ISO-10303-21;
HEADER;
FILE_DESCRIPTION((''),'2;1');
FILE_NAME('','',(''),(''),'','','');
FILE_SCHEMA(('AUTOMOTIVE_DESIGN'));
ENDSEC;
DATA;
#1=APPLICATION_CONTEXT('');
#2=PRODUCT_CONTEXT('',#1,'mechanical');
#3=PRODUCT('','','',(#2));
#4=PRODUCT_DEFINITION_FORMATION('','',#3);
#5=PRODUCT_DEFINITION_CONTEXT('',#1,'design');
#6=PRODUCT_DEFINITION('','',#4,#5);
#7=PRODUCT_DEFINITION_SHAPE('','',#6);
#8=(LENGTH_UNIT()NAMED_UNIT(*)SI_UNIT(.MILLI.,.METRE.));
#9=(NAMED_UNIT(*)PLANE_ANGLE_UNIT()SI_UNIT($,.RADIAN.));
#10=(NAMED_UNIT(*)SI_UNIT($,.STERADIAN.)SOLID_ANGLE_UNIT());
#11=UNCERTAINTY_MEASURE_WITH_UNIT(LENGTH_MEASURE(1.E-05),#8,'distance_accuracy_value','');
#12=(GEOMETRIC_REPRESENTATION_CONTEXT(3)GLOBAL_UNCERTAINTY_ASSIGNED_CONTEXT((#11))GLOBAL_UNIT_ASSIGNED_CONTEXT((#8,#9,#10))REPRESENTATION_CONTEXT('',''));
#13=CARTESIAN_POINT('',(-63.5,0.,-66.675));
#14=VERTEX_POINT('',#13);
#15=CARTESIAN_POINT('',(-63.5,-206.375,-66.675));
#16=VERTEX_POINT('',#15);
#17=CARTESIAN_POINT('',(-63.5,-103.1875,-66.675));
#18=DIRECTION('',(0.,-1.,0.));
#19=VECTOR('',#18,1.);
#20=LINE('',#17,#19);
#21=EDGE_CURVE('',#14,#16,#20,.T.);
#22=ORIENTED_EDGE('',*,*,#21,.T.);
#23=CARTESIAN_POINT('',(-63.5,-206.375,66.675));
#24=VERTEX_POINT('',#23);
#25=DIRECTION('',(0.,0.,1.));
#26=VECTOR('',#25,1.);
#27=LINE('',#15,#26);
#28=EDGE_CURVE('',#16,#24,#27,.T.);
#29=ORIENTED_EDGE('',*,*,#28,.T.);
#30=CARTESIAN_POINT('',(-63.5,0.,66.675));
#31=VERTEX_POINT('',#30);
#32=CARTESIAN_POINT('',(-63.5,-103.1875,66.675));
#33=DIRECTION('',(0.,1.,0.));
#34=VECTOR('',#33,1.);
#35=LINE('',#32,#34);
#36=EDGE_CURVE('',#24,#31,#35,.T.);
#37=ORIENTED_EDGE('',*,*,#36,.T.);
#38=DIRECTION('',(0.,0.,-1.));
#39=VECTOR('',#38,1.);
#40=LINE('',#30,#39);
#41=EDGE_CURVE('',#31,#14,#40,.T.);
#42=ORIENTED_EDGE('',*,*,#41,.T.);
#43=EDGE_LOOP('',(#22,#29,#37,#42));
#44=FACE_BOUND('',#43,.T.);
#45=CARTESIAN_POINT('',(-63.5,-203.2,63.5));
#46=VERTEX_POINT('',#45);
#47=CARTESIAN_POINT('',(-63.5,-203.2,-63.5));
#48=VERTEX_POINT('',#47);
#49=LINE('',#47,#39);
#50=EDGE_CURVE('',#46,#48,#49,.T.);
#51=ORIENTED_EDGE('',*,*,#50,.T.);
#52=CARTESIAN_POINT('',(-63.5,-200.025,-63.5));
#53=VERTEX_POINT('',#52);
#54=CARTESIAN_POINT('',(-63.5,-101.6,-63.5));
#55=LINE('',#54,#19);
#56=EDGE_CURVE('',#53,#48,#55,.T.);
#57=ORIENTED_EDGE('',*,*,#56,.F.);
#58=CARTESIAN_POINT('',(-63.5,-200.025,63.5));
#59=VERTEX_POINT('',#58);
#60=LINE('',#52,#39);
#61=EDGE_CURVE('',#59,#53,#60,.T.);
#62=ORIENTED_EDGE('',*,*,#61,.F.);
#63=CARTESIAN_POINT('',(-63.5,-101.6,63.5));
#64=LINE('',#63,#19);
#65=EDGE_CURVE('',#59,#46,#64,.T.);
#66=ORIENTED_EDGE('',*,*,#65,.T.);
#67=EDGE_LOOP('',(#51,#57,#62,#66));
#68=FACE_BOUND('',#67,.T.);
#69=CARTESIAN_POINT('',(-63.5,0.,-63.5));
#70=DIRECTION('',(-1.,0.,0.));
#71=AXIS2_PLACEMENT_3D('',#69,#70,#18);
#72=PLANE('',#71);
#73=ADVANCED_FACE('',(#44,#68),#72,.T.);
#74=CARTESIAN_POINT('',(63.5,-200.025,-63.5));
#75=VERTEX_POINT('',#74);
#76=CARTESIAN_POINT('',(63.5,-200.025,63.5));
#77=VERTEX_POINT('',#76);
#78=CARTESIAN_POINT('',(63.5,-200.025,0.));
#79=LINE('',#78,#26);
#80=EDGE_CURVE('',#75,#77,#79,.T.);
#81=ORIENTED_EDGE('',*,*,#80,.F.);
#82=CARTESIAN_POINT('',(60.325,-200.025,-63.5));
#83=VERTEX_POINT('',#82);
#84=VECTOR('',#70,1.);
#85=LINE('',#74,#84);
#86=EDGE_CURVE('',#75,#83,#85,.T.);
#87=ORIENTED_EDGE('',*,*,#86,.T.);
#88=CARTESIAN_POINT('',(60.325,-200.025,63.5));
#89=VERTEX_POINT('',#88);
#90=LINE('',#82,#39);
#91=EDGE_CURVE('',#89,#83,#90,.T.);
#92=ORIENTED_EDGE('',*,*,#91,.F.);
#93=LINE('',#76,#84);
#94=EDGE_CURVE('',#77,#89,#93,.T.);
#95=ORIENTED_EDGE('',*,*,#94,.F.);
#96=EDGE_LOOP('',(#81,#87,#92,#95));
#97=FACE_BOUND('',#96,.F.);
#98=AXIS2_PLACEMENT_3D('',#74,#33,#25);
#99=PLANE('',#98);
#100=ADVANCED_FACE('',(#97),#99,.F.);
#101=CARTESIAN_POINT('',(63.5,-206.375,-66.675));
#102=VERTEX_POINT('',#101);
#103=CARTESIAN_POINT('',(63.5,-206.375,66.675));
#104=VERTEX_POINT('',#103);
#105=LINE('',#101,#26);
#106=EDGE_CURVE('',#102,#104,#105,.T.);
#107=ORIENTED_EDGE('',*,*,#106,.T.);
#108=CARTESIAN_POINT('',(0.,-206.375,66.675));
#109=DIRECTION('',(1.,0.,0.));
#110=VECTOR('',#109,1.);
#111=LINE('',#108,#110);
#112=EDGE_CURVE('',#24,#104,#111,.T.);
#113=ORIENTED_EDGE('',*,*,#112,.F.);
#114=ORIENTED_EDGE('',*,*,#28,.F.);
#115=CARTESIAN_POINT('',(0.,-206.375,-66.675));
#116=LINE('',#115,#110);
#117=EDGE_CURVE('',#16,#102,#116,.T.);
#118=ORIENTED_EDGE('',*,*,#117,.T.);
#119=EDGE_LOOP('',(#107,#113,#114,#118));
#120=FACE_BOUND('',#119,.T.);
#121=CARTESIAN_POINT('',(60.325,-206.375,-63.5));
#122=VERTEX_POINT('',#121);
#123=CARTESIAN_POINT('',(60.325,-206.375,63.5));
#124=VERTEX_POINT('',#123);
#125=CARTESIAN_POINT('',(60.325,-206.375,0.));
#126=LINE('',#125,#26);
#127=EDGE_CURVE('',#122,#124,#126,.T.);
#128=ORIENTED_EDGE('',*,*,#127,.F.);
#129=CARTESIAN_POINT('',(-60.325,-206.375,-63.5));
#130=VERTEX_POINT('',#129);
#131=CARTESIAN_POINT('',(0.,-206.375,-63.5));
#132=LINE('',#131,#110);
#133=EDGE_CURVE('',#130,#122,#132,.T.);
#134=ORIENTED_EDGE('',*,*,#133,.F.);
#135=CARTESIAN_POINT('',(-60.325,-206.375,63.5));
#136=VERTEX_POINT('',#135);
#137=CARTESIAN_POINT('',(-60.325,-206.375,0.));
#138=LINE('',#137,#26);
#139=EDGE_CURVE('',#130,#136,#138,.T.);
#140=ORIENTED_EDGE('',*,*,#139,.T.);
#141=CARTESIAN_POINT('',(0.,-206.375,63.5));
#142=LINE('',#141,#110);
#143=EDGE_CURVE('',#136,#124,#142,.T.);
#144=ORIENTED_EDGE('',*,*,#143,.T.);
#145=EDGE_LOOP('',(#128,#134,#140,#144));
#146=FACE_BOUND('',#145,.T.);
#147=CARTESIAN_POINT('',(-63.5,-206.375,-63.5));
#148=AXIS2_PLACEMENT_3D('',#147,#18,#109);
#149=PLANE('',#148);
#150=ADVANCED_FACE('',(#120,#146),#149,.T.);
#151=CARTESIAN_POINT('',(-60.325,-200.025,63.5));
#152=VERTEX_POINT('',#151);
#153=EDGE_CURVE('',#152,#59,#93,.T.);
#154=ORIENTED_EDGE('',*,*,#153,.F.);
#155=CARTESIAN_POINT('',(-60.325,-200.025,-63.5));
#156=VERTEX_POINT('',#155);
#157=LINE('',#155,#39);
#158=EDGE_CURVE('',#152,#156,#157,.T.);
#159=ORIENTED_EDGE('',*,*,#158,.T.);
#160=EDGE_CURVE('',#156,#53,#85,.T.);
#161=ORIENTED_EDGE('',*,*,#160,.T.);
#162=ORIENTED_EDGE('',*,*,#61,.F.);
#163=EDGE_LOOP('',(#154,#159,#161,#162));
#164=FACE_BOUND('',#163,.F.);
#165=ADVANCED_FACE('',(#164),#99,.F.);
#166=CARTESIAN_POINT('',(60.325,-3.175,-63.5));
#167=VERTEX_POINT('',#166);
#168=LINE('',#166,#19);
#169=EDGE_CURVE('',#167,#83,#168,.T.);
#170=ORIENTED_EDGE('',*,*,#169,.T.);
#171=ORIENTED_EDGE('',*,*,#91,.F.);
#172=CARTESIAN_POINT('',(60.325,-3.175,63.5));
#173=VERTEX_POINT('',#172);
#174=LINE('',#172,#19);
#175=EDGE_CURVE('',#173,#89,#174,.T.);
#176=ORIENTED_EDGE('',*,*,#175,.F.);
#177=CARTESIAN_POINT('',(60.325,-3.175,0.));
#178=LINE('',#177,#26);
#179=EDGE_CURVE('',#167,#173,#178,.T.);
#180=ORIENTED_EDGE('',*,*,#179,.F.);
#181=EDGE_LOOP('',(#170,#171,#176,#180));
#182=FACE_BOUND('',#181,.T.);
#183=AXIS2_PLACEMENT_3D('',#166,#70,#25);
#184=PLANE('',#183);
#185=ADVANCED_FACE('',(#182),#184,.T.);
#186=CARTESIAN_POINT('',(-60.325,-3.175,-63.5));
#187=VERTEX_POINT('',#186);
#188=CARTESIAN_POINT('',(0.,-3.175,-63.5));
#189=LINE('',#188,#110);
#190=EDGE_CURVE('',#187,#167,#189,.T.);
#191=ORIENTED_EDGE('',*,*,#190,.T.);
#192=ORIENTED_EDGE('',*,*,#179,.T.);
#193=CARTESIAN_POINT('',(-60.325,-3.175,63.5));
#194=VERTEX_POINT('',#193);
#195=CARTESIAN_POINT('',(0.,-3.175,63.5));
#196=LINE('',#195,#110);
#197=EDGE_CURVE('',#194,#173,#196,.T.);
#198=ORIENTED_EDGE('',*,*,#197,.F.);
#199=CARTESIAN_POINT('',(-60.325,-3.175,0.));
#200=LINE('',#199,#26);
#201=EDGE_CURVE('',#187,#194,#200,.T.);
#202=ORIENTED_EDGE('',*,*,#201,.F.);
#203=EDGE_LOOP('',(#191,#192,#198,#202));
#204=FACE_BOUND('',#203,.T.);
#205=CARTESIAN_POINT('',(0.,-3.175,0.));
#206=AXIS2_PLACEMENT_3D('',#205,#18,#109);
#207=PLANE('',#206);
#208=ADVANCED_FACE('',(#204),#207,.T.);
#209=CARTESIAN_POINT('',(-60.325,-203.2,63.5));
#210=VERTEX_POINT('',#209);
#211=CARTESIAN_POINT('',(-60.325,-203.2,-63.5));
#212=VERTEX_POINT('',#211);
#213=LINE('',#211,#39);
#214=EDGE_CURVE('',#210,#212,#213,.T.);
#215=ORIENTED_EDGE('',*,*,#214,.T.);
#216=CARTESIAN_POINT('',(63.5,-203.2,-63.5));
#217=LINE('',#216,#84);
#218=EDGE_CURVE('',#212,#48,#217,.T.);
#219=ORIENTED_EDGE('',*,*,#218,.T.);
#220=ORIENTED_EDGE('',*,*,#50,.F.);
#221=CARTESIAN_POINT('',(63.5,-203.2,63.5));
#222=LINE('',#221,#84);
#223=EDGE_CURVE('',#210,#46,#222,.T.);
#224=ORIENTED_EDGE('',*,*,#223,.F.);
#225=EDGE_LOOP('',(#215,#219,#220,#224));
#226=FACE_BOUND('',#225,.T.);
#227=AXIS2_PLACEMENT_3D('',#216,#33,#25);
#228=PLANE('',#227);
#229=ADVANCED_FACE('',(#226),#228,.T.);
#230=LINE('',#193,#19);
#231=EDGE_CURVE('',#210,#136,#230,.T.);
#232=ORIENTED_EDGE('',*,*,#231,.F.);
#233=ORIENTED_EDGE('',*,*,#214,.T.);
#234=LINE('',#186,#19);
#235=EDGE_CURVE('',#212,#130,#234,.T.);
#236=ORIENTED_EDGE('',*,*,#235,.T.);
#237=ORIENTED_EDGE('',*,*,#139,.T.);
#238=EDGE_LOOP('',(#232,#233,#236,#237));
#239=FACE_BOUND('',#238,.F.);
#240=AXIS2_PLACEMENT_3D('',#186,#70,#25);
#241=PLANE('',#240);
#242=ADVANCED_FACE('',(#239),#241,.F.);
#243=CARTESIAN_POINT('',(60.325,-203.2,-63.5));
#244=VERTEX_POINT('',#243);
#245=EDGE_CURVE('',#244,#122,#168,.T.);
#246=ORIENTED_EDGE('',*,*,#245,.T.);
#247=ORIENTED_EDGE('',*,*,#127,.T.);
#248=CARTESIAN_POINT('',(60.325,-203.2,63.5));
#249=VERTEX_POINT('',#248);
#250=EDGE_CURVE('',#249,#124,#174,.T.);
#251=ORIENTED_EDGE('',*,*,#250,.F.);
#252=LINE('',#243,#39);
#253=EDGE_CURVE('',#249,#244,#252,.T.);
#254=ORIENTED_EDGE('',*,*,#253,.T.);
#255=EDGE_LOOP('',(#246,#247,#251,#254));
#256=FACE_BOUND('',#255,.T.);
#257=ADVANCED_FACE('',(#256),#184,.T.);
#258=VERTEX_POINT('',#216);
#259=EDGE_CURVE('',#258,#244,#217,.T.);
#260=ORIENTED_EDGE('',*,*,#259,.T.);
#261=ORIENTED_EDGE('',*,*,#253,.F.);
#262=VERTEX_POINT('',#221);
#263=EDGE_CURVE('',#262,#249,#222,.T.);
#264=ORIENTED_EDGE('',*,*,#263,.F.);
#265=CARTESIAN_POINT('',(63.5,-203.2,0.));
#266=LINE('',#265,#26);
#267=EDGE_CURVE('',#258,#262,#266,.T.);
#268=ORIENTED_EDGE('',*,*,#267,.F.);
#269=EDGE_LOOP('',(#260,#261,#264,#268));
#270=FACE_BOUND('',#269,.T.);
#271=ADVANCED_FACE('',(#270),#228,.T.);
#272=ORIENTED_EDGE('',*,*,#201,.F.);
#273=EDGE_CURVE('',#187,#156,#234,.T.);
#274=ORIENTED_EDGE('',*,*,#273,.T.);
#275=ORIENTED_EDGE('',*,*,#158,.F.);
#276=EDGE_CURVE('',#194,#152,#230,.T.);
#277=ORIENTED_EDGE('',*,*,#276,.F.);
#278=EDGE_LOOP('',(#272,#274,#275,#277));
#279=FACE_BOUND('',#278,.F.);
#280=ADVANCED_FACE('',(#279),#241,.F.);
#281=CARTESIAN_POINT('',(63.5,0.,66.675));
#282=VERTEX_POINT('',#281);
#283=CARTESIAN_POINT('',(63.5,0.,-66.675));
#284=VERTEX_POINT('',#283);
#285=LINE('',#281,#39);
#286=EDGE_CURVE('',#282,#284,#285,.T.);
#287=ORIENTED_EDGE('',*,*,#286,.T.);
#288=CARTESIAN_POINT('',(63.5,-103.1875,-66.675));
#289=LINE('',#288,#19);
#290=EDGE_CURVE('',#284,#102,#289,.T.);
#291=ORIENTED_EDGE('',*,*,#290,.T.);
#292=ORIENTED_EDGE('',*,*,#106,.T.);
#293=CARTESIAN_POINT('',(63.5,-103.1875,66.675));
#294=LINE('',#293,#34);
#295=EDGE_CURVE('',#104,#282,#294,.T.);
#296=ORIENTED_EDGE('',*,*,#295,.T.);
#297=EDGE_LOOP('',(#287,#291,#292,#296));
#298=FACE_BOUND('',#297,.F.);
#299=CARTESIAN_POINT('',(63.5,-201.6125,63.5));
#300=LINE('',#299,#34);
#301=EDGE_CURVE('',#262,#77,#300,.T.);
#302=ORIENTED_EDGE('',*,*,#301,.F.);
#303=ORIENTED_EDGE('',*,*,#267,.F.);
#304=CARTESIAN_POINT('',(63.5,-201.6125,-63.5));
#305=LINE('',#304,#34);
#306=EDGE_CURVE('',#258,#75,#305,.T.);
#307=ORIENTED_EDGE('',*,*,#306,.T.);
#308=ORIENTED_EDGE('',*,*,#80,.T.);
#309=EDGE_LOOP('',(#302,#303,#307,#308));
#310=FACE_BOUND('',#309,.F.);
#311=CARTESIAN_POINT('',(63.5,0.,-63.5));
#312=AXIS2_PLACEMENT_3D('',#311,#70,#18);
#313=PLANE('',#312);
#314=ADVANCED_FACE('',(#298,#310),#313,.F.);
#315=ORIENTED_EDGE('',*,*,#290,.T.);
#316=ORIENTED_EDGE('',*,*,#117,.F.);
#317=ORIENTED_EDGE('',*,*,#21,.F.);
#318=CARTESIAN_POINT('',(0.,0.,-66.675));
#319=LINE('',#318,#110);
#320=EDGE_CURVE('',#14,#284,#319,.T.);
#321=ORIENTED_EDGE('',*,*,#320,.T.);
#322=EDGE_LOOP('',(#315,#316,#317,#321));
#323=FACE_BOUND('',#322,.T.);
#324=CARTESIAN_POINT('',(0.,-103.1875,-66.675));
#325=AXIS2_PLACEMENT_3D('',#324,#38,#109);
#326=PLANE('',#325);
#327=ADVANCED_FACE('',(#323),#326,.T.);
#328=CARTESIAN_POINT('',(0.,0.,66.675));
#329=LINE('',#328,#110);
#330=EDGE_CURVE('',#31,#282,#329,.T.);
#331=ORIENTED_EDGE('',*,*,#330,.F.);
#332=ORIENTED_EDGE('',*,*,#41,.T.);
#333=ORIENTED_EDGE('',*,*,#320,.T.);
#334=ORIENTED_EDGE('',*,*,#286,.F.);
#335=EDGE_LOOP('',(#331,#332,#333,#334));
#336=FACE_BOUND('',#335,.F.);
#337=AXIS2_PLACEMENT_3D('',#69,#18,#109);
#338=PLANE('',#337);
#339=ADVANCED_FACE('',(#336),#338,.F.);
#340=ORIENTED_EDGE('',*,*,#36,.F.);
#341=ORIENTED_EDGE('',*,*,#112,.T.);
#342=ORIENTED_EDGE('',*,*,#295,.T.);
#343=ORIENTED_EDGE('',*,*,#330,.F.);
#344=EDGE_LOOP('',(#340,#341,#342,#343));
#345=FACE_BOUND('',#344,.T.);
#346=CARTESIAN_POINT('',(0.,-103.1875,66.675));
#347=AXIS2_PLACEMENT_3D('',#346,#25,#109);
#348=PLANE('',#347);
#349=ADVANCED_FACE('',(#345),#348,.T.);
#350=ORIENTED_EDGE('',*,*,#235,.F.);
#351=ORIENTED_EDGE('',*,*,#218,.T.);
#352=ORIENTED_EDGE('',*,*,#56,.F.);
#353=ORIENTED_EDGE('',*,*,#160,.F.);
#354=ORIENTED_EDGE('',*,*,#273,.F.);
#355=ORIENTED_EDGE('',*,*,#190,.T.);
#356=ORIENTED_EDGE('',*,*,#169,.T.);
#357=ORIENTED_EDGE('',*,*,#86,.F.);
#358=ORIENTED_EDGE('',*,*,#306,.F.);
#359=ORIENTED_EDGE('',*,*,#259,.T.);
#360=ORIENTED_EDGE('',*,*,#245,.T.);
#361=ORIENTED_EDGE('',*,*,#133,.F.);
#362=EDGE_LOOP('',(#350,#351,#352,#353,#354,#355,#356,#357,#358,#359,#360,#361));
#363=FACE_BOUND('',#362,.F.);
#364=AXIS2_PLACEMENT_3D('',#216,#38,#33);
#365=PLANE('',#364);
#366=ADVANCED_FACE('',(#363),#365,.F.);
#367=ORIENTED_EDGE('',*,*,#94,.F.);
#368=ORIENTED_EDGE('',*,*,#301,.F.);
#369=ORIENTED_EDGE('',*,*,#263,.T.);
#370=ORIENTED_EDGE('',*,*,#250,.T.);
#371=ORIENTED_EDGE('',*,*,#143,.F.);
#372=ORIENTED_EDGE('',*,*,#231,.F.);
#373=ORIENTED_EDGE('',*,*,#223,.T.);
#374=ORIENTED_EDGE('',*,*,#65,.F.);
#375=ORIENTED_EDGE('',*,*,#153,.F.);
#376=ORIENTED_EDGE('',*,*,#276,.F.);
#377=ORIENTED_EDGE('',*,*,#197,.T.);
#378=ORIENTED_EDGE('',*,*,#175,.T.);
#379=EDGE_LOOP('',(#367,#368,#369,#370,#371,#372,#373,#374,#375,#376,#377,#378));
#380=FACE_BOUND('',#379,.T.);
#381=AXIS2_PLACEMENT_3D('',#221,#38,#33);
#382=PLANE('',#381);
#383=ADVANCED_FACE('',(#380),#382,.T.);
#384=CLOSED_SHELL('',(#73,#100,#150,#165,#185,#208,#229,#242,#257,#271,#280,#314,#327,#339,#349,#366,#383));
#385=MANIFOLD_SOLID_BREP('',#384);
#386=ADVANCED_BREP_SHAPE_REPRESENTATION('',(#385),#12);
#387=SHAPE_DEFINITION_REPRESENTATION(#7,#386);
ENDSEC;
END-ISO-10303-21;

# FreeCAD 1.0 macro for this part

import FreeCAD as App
import Part
import Sketcher

V = App.Vector
Q = App.Units.Quantity

doc = App.newDocument("Part")
body = doc.addObject("PartDesign::Body", "Body")

sketch1 = body.newObject("Sketcher::SketchObject", "Sketch")
sketch1.AttachmentSupport = (doc.getObject("XZ_Plane"), [""])
sketch1.MapMode = "FlatFace"
sketch1.addGeometry([
    Part.LineSegment(V(-63.5, 63.5, 0), V(-63.5, -63.5, 0)),
    Part.LineSegment(V(-63.5, -63.5, 0), V(63.5, -63.5, 0)),
    Part.LineSegment(V(63.5, -63.5, 0), V(63.5, 63.5, 0)),
    Part.LineSegment(V(63.5, 63.5, 0), V(-63.5, 63.5, 0)),
], False)
sketch1.addConstraint([
    Sketcher.Constraint("Coincident", 0, 2, 1, 1),
    Sketcher.Constraint("Coincident", 1, 2, 2, 1),
    Sketcher.Constraint("Coincident", 2, 2, 3, 1),
    Sketcher.Constraint("Coincident", 3, 2, 0, 1),
    Sketcher.Constraint("Vertical", 0),
    Sketcher.Constraint("Horizontal", 1),
    Sketcher.Constraint("Vertical", 2),
    Sketcher.Constraint("Horizontal", 3),
    Sketcher.Constraint("Symmetric", 0, 2, 2, 2, -1, 1),
    Sketcher.Constraint("Equal", 3, 0),
    Sketcher.Constraint("DistanceX", 1, 1, 1, 2, Q("5 in")),
])
pad1 = body.newObject("PartDesign::Pad", "Pad")
pad1.Profile = sketch1
pad1.Length = Q("0.125 in")

sketch2 = body.newObject("Sketcher::SketchObject", "Sketch001")
sketch2.AttachmentSupport = (doc.getObject("XZ_Plane"), [""])
sketch2.MapMode = "FlatFace"
sketch2.AttachmentOffset = App.Placement(V(0, 0, 0.125 * 25.4), App.Rotation())
sketch2.addGeometry([
    Part.LineSegment(V(-63.5, 63.5, 0), V(-63.5, -63.5, 0)),
    Part.LineSegment(V(-63.5, -63.5, 0), V(-60.325, -63.5, 0)),
    Part.LineSegment(V(-60.325, -63.5, 0), V(-60.325, 63.5, 0)),
    Part.LineSegment(V(-60.325, 63.5, 0), V(-63.5, 63.5, 0)),
    Part.LineSegment(V(60.325, 63.5, 0), V(60.325, -63.5, 0)),
    Part.LineSegment(V(60.325, -63.5, 0), V(63.5, -63.5, 0)),
    Part.LineSegment(V(63.5, -63.5, 0), V(63.5, 63.5, 0)),
    Part.LineSegment(V(63.5, 63.5, 0), V(60.325, 63.5, 0)),
], False)
sketch2.addConstraint([
    Sketcher.Constraint("Coincident", 0, 2, 1, 1),
    Sketcher.Constraint("Coincident", 1, 2, 2, 1),
    Sketcher.Constraint("Coincident", 2, 2, 3, 1),
    Sketcher.Constraint("Coincident", 3, 2, 0, 1),
    Sketcher.Constraint("Coincident", 4, 2, 5, 1),
    Sketcher.Constraint("Coincident", 5, 2, 6, 1),
    Sketcher.Constraint("Coincident", 6, 2, 7, 1),
    Sketcher.Constraint("Coincident", 7, 2, 4, 1),
    Sketcher.Constraint("Vertical", 0),
    Sketcher.Constraint("Horizontal", 1),
    Sketcher.Constraint("Vertical", 2),
    Sketcher.Constraint("Horizontal", 3),
    Sketcher.Constraint("Vertical", 4),
    Sketcher.Constraint("Horizontal", 5),
    Sketcher.Constraint("Vertical", 6),
    Sketcher.Constraint("Horizontal", 7),
    Sketcher.Constraint("Symmetric", 2, 2, 4, 2, -1, 1),
    Sketcher.Constraint("Symmetric", 0, 2, 6, 2, -1, 1),
    Sketcher.Constraint("Horizontal", 1, 2, 4, 2),
    Sketcher.Constraint("DistanceY", 0, 2, 0, 1, Q("5 in")),
    Sketcher.Constraint("DistanceX", 0, 2, 5, 2, Q("5 in")),
    Sketcher.Constraint("DistanceX", 1, 1, 1, 2, Q("0.125 in")),
])
pad2 = body.newObject("PartDesign::Pad", "Pad001")
pad2.Profile = sketch2
pad2.Length = Q("8 in")

sketch3 = body.newObject("Sketcher::SketchObject", "Sketch002")
sketch3.AttachmentSupport = (doc.getObject("XY_Plane"), [""])
sketch3.MapMode = "FlatFace"
sketch3.AttachmentOffset = App.Placement(V(0, 0, 2.5 * 25.4), App.Rotation())
sketch3.addGeometry([
    Part.LineSegment(V(-63.5, 0, 0), V(-63.5, -206.375, 0)),
    Part.LineSegment(V(-63.5, -206.375, 0), V(63.5, -206.375, 0)),
    Part.LineSegment(V(63.5, -206.375, 0), V(63.5, 0, 0)),
    Part.LineSegment(V(63.5, 0, 0), V(-63.5, 0, 0)),
], False)
sketch3.addConstraint([
    Sketcher.Constraint("Coincident", 0, 2, 1, 1),
    Sketcher.Constraint("Coincident", 1, 2, 2, 1),
    Sketcher.Constraint("Coincident", 2, 2, 3, 1),
    Sketcher.Constraint("Coincident", 3, 2, 0, 1),
    Sketcher.Constraint("Vertical", 0),
    Sketcher.Constraint("Horizontal", 1),
    Sketcher.Constraint("Vertical", 2),
    Sketcher.Constraint("Horizontal", 3),
    Sketcher.Constraint("Symmetric", 2, 2, 3, 2, -1, 1),
    Sketcher.Constraint("DistanceX", 1, 1, 1, 2, Q("5 in")),
    Sketcher.Constraint("DistanceY", 0, 2, 0, 1, Q("8.125 in")),
])
pad3 = body.newObject("PartDesign::Pad", "Pad002")
pad3.Profile = sketch3
pad3.Length = Q("0.125 in")

sketch4 = body.newObject("Sketcher::SketchObject", "Sketch003")
sketch4.AttachmentSupport = (doc.getObject("XY_Plane"), [""])
sketch4.MapMode = "FlatFace"
sketch4.AttachmentOffset = App.Placement(V(0, 0, -2.5 * 25.4), App.Rotation())
sketch4.addGeometry([
    Part.LineSegment(V(-63.5, -206.375, 0), V(-63.5, 0, 0)),
    Part.LineSegment(V(-63.5, 0, 0), V(63.5, 0, 0)),
    Part.LineSegment(V(63.5, 0, 0), V(63.5, -206.375, 0)),
    Part.LineSegment(V(63.5, -206.375, 0), V(-63.5, -206.375, 0)),
], False)
sketch4.addConstraint([
    Sketcher.Constraint("Coincident", 0, 2, 1, 1),
    Sketcher.Constraint("Coincident", 1, 2, 2, 1),
    Sketcher.Constraint("Coincident", 2, 2, 3, 1),
    Sketcher.Constraint("Coincident", 3, 2, 0, 1),
    Sketcher.Constraint("Vertical", 0),
    Sketcher.Constraint("Horizontal", 1),
    Sketcher.Constraint("Vertical", 2),
    Sketcher.Constraint("Horizontal", 3),
    Sketcher.Constraint("Symmetric", 0, 2, 1, 2, -1, 1),
    Sketcher.Constraint("DistanceX", 1, 1, 1, 2, Q("5 in")),
    Sketcher.Constraint("DistanceY", 0, 1, 0, 2, Q("8.125 in")),
])
pad4 = body.newObject("PartDesign::Pad", "Pad003")
pad4.Profile = sketch4
pad4.Length = Q("0.125 in")
pad4.Reversed = True

sketch5 = body.newObject("Sketcher::SketchObject", "Sketch004")
sketch5.AttachmentSupport = (doc.getObject("YZ_Plane"), [""])
sketch5.MapMode = "FlatFace"
sketch5.AttachmentOffset = App.Placement(V(0, 0, 2.5 * 25.4), App.Rotation())
sketch5.addGeometry([
    Part.LineSegment(V(-203.2, 63.5, 0), V(-203.2, -63.5, 0)),
    Part.LineSegment(V(-203.2, -63.5, 0), V(-200.025, -63.5, 0)),
    Part.LineSegment(V(-200.025, -63.5, 0), V(-200.025, 63.5, 0)),
    Part.LineSegment(V(-200.025, 63.5, 0), V(-203.2, 63.5, 0)),
], False)
sketch5.addConstraint([
    Sketcher.Constraint("Coincident", 0, 2, 1, 1),
    Sketcher.Constraint("Coincident", 1, 2, 2, 1),
    Sketcher.Constraint("Coincident", 2, 2, 3, 1),
    Sketcher.Constraint("Coincident", 3, 2, 0, 1),
    Sketcher.Constraint("Vertical", 0),
    Sketcher.Constraint("Horizontal", 1),
    Sketcher.Constraint("Vertical", 2),
    Sketcher.Constraint("Horizontal", 3),
    Sketcher.Constraint("DistanceY", 0, 2, 0, 1, Q("5 in")),
    Sketcher.Constraint("DistanceX", 0, 2, -1, 1, Q("8 in")),
    Sketcher.Constraint("DistanceY", 0, 2, -1, 1, Q("2.5 in")),
    Sketcher.Constraint("DistanceX", 1, 1, 1, 2, Q("0.125 in")),
])
pocket1 = body.newObject("PartDesign::Pocket", "Pocket")
pocket1.Profile = sketch5
pocket1.Type = "ThroughAll"

doc.recompute()
